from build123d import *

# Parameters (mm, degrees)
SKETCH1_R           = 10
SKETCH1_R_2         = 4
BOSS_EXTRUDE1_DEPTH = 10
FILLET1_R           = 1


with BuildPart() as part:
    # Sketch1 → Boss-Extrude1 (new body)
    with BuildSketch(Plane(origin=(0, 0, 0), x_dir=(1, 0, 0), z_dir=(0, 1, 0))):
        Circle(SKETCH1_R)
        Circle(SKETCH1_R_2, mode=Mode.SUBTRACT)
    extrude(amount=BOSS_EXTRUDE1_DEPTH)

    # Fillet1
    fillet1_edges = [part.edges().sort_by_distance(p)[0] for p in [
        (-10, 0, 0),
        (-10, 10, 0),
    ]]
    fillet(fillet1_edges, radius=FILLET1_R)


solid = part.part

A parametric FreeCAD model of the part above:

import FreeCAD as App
import Part
import Sketcher
Q = App.Units.Quantity


def edges_at(feature, points):
    """Names of the edges that pass closest to the given points."""
    edges = feature.Shape.Edges
    near = lambda p: min(range(len(edges)), key=lambda i: edges[i].distToShape(Part.Vertex(*p))[0])
    return sorted({f"Edge{near(p) + 1}" for p in points})

doc = App.newDocument("Part")
body = doc.addObject("PartDesign::Body", "Body")

# Sketch on XZ plane
sketch1 = doc.addObject("Sketcher::SketchObject", "Sketch")
body.addObject(sketch1)
sketch1.AttachmentSupport = (doc.XZ_Plane, [""])
sketch1.MapMode = "FlatFace"
sketch1.addGeometry([
    Part.Circle(App.Vector(0, 0, 0), App.Vector(0, 0, 1), 10),
    Part.Circle(App.Vector(0, 0, 0), App.Vector(0, 0, 1), 4),
], False)
sketch1.addConstraint([
    Sketcher.Constraint("Coincident", 0, 3, -1, 1),
    Sketcher.Constraint("Coincident", 1, 3, -1, 1),
    Sketcher.Constraint("Diameter", 0, Q("20 mm")),
    Sketcher.Constraint("Diameter", 1, Q("8 mm")),
])
pad1 = doc.addObject("PartDesign::Pad", "Pad")
body.addObject(pad1)
pad1.Profile = sketch1
pad1.Length = 10
pad1.Reversed = True
doc.recompute()

fillet = doc.addObject("PartDesign::Fillet", "Fillet")
body.addObject(fillet)
fillet.Base = (pad1, edges_at(pad1, [(-10, 0, 0), (-10, 10, 0)]))
fillet.Radius = 1

doc.recompute()
